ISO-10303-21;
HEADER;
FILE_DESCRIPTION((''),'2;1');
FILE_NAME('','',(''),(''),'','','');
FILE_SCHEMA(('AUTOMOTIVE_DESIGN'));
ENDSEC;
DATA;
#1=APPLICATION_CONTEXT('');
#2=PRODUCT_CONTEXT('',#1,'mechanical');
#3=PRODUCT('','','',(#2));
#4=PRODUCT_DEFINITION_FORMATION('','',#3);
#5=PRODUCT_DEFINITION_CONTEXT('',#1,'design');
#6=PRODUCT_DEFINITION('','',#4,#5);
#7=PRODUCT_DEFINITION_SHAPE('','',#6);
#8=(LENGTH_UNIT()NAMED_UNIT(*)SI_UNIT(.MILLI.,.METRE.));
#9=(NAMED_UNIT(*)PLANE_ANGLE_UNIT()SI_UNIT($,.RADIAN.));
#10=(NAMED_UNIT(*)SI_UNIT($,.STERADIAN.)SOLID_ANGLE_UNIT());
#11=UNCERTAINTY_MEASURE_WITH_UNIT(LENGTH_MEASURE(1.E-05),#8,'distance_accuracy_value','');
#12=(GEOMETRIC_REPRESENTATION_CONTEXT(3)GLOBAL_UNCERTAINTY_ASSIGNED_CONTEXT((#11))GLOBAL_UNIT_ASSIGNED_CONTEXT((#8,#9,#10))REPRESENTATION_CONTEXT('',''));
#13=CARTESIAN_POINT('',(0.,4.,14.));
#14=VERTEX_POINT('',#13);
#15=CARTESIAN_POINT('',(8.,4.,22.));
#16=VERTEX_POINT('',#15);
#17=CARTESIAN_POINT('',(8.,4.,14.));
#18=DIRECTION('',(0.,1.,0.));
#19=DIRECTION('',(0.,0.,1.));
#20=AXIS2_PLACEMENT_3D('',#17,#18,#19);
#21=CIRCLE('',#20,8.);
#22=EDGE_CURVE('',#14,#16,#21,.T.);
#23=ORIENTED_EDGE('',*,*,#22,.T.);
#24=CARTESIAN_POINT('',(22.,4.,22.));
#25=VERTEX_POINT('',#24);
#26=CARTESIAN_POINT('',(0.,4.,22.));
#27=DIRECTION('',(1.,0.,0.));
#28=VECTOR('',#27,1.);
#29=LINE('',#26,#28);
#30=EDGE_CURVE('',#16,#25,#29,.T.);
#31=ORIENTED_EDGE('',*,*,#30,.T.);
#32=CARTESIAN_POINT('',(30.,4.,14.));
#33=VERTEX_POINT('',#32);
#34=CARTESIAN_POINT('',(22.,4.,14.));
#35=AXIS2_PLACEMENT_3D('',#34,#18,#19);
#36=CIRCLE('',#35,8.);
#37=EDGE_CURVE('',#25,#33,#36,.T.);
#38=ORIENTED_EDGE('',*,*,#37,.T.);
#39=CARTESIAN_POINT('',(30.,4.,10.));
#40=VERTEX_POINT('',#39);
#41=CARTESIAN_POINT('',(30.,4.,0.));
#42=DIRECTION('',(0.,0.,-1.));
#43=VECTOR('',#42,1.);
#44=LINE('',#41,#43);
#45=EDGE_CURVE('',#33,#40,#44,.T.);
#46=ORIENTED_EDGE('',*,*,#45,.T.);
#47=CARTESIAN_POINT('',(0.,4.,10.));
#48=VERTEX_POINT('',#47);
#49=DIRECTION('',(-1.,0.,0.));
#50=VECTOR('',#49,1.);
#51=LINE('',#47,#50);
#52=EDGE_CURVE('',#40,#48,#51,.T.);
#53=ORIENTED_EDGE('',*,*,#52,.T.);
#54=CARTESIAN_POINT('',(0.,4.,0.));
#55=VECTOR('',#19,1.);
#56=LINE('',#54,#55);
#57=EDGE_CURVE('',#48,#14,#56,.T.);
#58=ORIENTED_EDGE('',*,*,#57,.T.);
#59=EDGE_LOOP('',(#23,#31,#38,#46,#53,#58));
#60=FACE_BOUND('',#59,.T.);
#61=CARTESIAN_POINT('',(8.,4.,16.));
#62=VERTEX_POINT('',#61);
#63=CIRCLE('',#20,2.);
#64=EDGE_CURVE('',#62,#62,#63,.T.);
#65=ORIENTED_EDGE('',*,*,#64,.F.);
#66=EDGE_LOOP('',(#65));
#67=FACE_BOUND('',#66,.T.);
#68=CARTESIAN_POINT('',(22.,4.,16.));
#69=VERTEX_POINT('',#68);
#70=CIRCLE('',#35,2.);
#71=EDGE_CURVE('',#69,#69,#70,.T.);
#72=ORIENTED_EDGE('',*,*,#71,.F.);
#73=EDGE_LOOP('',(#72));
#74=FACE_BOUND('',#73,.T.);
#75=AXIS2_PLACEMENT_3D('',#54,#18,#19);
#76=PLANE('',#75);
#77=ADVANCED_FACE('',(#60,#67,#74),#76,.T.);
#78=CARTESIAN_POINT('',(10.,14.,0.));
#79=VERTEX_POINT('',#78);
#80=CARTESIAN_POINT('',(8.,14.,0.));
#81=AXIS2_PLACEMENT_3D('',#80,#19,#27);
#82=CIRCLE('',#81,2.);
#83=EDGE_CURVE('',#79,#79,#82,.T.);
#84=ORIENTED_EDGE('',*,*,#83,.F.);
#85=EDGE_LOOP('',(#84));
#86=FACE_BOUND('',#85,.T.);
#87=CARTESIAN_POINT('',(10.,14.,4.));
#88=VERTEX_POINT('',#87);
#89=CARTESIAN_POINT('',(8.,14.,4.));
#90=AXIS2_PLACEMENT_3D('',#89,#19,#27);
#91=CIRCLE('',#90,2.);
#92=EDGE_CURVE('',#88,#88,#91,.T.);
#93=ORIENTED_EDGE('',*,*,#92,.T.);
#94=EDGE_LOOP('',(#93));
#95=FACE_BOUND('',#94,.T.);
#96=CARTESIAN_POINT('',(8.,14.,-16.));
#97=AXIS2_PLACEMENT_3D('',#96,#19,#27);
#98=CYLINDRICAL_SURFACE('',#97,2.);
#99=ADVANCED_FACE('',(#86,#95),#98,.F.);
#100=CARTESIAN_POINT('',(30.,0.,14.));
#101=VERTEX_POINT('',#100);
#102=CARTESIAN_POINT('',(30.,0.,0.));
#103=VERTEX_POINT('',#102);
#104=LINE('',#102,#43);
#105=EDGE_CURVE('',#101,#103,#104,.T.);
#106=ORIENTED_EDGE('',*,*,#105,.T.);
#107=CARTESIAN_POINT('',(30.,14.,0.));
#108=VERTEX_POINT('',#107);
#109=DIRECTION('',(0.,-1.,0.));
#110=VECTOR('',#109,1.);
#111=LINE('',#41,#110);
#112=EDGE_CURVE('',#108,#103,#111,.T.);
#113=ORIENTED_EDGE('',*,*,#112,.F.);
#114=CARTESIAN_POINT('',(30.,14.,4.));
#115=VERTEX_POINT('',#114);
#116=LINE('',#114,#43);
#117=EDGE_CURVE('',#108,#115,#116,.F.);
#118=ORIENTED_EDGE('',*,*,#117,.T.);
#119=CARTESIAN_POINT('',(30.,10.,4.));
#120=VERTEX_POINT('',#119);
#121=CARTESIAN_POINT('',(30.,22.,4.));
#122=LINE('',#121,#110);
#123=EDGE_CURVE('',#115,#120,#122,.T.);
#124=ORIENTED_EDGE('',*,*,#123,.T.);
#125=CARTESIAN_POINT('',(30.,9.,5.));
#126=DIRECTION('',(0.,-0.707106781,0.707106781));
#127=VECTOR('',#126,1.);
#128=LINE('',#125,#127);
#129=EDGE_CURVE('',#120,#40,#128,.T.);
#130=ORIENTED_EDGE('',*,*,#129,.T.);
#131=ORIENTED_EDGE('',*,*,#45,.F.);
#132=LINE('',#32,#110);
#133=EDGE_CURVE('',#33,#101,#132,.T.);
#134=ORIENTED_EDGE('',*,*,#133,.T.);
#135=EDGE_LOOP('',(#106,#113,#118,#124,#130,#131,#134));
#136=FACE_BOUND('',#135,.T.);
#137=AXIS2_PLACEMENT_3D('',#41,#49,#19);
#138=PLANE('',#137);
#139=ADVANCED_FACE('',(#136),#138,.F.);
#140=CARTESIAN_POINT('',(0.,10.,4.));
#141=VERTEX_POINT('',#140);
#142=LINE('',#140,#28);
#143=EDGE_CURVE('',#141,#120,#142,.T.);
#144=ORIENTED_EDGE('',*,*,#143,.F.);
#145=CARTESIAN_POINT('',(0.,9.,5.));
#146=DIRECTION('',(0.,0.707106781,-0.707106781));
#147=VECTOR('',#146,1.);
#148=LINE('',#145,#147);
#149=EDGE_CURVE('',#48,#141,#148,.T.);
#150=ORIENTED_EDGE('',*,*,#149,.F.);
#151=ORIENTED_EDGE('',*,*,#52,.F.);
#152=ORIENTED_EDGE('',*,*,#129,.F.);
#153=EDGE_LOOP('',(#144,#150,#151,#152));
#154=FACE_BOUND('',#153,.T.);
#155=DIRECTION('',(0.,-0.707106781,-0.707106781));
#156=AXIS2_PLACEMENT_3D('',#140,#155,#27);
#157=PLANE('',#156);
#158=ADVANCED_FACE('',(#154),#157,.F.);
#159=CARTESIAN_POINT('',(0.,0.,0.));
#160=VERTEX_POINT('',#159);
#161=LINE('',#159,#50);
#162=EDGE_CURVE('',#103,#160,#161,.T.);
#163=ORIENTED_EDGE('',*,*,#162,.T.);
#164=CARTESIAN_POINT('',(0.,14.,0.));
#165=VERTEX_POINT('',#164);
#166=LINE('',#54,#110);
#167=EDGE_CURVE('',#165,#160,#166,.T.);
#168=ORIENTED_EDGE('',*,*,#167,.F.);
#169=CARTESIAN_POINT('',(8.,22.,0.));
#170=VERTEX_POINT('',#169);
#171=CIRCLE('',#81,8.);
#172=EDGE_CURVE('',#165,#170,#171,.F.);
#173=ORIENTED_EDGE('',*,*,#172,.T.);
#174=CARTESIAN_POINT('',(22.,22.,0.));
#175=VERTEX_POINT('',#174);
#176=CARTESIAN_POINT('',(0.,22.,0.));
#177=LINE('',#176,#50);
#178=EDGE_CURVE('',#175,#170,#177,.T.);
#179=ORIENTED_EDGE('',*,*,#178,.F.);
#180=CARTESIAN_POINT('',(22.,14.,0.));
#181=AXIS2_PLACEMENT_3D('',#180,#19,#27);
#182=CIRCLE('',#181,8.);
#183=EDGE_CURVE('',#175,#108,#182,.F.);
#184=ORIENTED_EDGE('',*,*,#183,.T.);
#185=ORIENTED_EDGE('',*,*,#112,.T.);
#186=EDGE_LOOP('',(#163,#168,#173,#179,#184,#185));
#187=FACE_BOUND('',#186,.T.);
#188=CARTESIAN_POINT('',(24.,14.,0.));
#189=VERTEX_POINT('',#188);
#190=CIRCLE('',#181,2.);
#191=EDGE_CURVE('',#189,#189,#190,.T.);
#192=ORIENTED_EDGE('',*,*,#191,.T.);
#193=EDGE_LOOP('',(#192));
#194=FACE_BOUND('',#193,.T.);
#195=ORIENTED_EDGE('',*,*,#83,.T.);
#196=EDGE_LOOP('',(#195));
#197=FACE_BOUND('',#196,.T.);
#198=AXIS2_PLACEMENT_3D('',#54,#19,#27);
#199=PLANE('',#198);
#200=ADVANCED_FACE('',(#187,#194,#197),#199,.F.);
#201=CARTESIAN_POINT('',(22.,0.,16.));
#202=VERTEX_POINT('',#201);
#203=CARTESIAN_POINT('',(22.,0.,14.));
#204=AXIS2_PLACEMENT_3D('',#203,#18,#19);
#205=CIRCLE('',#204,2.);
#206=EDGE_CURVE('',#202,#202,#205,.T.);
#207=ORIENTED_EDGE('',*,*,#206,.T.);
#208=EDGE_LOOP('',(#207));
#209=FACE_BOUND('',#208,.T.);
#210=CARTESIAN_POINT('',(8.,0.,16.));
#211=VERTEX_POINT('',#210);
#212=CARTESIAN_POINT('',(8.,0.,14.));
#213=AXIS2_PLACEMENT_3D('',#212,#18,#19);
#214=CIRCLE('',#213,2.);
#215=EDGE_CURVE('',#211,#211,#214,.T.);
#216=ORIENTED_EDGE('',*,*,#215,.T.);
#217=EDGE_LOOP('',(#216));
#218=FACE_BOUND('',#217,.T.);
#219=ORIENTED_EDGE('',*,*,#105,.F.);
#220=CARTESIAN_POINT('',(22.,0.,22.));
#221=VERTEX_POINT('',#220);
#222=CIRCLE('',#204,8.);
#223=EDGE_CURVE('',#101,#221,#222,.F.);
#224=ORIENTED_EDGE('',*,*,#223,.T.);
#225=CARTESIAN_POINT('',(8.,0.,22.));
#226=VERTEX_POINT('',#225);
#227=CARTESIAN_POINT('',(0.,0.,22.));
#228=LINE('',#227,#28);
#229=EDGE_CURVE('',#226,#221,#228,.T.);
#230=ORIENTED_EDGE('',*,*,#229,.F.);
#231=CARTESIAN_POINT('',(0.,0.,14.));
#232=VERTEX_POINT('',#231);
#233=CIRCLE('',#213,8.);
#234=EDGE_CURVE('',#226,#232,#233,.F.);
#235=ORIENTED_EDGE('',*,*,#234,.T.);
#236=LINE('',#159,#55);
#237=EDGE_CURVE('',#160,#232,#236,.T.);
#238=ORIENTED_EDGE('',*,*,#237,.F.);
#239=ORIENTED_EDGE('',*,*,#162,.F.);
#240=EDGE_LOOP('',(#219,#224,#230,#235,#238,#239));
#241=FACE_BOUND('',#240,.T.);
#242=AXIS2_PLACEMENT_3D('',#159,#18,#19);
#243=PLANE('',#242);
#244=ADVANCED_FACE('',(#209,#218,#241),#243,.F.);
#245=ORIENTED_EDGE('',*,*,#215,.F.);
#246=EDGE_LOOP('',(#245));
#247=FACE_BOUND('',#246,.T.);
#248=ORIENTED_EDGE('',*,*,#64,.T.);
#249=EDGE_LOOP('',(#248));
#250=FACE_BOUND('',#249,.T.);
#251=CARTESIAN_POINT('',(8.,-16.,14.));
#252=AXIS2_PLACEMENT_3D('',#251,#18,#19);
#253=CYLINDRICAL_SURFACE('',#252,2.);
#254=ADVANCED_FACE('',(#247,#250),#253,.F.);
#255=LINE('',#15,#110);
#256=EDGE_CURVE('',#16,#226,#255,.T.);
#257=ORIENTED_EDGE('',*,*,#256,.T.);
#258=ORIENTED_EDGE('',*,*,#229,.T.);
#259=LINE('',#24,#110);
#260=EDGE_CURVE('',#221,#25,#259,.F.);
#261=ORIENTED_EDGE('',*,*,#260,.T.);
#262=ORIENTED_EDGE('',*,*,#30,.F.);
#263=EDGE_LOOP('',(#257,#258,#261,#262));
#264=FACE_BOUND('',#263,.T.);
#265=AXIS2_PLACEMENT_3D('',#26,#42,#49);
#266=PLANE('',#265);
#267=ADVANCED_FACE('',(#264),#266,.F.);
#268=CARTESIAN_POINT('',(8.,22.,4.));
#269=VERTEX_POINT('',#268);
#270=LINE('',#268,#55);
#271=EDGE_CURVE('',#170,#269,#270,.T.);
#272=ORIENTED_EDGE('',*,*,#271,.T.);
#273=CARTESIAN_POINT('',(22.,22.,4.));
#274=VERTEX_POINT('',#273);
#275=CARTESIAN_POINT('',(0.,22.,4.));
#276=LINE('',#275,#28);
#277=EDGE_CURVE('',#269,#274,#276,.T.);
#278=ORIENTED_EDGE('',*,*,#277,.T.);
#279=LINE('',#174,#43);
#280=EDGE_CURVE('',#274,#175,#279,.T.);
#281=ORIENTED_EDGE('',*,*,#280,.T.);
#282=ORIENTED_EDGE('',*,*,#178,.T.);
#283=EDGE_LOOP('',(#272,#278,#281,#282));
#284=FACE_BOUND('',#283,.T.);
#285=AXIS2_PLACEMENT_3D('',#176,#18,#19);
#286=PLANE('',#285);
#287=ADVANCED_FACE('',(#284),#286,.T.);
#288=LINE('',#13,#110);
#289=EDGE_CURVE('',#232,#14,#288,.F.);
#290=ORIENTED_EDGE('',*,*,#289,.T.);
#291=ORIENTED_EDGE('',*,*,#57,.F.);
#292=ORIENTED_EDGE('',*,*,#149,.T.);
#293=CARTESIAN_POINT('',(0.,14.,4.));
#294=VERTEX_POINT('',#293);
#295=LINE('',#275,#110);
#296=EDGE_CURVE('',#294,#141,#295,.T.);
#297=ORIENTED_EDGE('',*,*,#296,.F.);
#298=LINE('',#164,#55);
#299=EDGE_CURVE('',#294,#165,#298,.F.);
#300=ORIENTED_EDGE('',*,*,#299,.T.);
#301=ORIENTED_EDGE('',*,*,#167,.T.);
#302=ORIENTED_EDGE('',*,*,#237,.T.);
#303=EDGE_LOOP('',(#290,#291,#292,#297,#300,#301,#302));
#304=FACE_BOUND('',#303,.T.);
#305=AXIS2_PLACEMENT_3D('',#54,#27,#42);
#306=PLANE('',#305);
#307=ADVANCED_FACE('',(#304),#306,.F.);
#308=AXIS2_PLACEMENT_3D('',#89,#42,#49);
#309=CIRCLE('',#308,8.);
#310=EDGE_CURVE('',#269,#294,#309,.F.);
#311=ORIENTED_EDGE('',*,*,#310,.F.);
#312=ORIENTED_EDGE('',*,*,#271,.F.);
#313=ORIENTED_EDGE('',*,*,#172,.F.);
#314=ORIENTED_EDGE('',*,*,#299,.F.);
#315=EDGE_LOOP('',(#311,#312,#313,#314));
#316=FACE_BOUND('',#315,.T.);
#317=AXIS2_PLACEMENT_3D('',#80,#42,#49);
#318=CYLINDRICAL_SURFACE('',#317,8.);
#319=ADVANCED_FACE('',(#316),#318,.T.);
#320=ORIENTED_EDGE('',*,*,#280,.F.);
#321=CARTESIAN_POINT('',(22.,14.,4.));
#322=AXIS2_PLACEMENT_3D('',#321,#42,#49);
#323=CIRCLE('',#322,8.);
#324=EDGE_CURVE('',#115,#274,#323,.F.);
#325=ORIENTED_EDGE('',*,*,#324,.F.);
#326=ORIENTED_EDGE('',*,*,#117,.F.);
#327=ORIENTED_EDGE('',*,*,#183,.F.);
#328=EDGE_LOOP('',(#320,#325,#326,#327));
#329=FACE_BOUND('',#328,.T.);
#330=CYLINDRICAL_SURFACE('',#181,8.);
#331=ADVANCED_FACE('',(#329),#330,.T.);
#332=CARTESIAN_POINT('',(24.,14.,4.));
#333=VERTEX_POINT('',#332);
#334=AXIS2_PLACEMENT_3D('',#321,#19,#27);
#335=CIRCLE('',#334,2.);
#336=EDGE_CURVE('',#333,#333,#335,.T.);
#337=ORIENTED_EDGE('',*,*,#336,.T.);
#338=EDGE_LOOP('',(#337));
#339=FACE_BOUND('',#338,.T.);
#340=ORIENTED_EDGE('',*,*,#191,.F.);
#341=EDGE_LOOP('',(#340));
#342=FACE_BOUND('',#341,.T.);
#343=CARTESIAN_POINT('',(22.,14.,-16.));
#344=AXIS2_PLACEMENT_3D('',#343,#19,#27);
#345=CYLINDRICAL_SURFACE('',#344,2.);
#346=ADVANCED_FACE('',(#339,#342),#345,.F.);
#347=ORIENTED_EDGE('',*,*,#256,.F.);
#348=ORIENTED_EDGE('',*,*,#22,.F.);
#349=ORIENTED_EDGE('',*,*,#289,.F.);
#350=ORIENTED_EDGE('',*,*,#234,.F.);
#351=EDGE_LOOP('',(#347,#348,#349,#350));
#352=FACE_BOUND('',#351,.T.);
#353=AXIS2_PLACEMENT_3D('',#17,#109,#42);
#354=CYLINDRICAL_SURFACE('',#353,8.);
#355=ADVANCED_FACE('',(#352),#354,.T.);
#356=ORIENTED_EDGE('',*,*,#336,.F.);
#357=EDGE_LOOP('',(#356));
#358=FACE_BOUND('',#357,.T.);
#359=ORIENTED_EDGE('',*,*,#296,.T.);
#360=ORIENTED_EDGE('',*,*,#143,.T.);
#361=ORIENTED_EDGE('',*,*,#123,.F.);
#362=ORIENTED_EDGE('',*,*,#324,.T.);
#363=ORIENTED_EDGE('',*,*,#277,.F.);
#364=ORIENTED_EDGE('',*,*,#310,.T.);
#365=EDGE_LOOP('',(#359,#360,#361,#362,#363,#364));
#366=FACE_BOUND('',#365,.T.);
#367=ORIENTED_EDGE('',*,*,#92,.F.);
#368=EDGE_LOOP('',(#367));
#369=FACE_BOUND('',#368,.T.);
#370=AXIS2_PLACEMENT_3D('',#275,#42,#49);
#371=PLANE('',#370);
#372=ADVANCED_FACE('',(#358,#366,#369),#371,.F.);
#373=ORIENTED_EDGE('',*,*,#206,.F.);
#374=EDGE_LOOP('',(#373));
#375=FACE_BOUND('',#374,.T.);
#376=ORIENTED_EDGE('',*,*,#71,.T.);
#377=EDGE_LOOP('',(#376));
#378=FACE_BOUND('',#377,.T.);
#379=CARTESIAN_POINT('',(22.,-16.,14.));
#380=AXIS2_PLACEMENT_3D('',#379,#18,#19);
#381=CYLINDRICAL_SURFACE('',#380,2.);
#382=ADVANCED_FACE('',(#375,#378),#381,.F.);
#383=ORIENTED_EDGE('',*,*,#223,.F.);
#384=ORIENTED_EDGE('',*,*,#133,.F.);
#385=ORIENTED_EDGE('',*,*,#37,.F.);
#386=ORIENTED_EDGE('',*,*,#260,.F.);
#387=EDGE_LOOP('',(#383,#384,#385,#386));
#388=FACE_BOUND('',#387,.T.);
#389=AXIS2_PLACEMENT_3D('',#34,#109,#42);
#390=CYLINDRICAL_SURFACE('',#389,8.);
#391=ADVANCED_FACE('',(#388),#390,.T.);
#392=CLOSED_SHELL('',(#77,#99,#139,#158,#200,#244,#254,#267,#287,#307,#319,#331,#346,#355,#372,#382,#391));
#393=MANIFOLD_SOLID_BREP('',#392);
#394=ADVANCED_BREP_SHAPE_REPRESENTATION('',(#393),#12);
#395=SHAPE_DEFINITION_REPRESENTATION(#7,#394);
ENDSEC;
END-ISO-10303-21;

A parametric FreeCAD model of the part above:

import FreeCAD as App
import Part
import Sketcher
Q = App.Units.Quantity


def edges_at(feature, points):
    """Names of the edges that pass closest to the given points."""
    edges = feature.Shape.Edges
    near = lambda p: min(range(len(edges)), key=lambda i: edges[i].distToShape(Part.Vertex(*p))[0])
    return sorted({f"Edge{near(p) + 1}" for p in points})


def add_polygon(sketch, points):
    """Adds a closed chain of lines whose ends are joined by coincident constraints."""
    first, n = sketch.GeometryCount, len(points)
    for a, b in zip(points, points[1:] + points[:1]):
        sketch.addGeometry(Part.LineSegment(App.Vector(*a, 0), App.Vector(*b, 0)), False)
    for i in range(n):
        sketch.addConstraint(Sketcher.Constraint("Coincident", first + i, 2, first + (i + 1) % n, 1))

doc = App.newDocument("Part")
params = doc.addObject("Spreadsheet::Sheet", "Params")
for row, (alias, value) in enumerate([
    ("sketch1_width", "30 mm"),
    ("sketch1_height", "22 mm"),
    ("pad1_length", "4 mm"),
    ("sketch2_width", "30 mm"),
    ("sketch2_height", "4 mm"),
    ("pad2_length", "18 mm"),
    ("sketch3_diameter", "4 mm"),
    ("pocket1_length", "20 mm"),
    ("sketch4_diameter", "4 mm"),
    ("pocket2_length", "20 mm"),
    ("chamfer_size", "6 mm"),
    ("fillet_radius", "8 mm"),
], start=1):
    params.set(f"A{row}", alias)
    params.set(f"B{row}", "=" + value)
    params.setAlias(f"B{row}", alias)

body = doc.addObject("PartDesign::Body", "Body")

# Sketch on XZ plane
sketch1 = body.newObject("Sketcher::SketchObject", "Sketch")
sketch1.AttachmentSupport = (doc.getObject("XZ_Plane"), [""])
sketch1.MapMode = "FlatFace"
add_polygon(sketch1, [(0, 0), (0, 22), (30, 22), (30, 0)])  # lines 0-3
sketch1.addConstraint(Sketcher.Constraint("Vertical", 0))
sketch1.addConstraint(Sketcher.Constraint("Horizontal", 1))
sketch1.addConstraint(Sketcher.Constraint("Vertical", 2))
sketch1.addConstraint(Sketcher.Constraint("Horizontal", 3))
sketch1.addConstraint(Sketcher.Constraint("Coincident", 3, 2, -1, 1))
sketch1.addConstraint(Sketcher.Constraint("DistanceX", 1, 1, 1, 2, Q("30 mm")))
sketch1.addConstraint(Sketcher.Constraint("DistanceY", 0, 1, 0, 2, Q("22 mm")))
sketch1.setExpression("Constraints[9]", "Params.sketch1_width")
sketch1.setExpression("Constraints[10]", "Params.sketch1_height")
pad1 = body.newObject("PartDesign::Pad", "Pad")
pad1.Profile = sketch1
pad1.setExpression("Length", "Params.pad1_length")
pad1.Reversed = True

# Sketch on XZ plane
sketch2 = body.newObject("Sketcher::SketchObject", "Sketch001")
sketch2.AttachmentSupport = (doc.getObject("XZ_Plane"), [""])
sketch2.MapMode = "FlatFace"
sketch2.AttachmentOffset = App.Placement(App.Vector(0, 0, -4), App.Rotation())
add_polygon(sketch2, [(0, 0), (0, 4), (30, 4), (30, 0)])  # lines 0-3
sketch2.addConstraint(Sketcher.Constraint("Vertical", 0))
sketch2.addConstraint(Sketcher.Constraint("Horizontal", 1))
sketch2.addConstraint(Sketcher.Constraint("Vertical", 2))
sketch2.addConstraint(Sketcher.Constraint("Horizontal", 3))
sketch2.addConstraint(Sketcher.Constraint("Coincident", 3, 2, -1, 1))
sketch2.addConstraint(Sketcher.Constraint("DistanceX", 1, 1, 1, 2, Q("30 mm")))
sketch2.addConstraint(Sketcher.Constraint("DistanceY", 0, 1, 0, 2, Q("4 mm")))
sketch2.setExpression("Constraints[9]", "Params.sketch2_width")
sketch2.setExpression("Constraints[10]", "Params.sketch2_height")
pad2 = body.newObject("PartDesign::Pad", "Pad001")
pad2.Profile = sketch2
pad2.setExpression("Length", "Params.pad2_length")
pad2.Reversed = True

# Sketch on XZ plane
sketch3 = body.newObject("Sketcher::SketchObject", "Sketch002")
sketch3.AttachmentSupport = (doc.getObject("XZ_Plane"), [""])
sketch3.MapMode = "FlatFace"
sketch3.AttachmentOffset = App.Placement(App.Vector(0, 0, -4), App.Rotation())
sketch3.addGeometry(Part.Circle(App.Vector(8, 14, 0), App.Vector(0, 0, 1), 2), False)
sketch3.addGeometry(Part.Circle(App.Vector(22, 14, 0), App.Vector(0, 0, 1), 2), False)
sketch3.addConstraint(Sketcher.Constraint("Equal", 0, 1))
sketch3.addConstraint(Sketcher.Constraint("Horizontal", 0, 3, 1, 3))
sketch3.addConstraint(Sketcher.Constraint("Diameter", 0, Q("4 mm")))
sketch3.addConstraint(Sketcher.Constraint("DistanceX", -1, 1, 0, 3, Q("8 mm")))
sketch3.addConstraint(Sketcher.Constraint("DistanceY", -1, 1, 0, 3, Q("14 mm")))
sketch3.addConstraint(Sketcher.Constraint("DistanceX", -1, 1, 1, 3, Q("22 mm")))
sketch3.setExpression("Constraints[2]", "Params.sketch3_diameter")
pocket1 = body.newObject("PartDesign::Pocket", "Pocket")
pocket1.Profile = sketch3
pocket1.setExpression("Length", "Params.pocket1_length")
pocket1.Reversed = True

# Sketch on XY plane
sketch4 = body.newObject("Sketcher::SketchObject", "Sketch003")
sketch4.AttachmentSupport = (doc.getObject("XY_Plane"), [""])
sketch4.MapMode = "FlatFace"
sketch4.AttachmentOffset = App.Placement(App.Vector(0, 0, 4), App.Rotation())
sketch4.addGeometry(Part.Circle(App.Vector(8, 14, 0), App.Vector(0, 0, 1), 2), False)
sketch4.addGeometry(Part.Circle(App.Vector(22, 14, 0), App.Vector(0, 0, 1), 2), False)
sketch4.addConstraint(Sketcher.Constraint("Equal", 0, 1))
sketch4.addConstraint(Sketcher.Constraint("Horizontal", 0, 3, 1, 3))
sketch4.addConstraint(Sketcher.Constraint("Diameter", 0, Q("4 mm")))
sketch4.addConstraint(Sketcher.Constraint("DistanceX", -1, 1, 0, 3, Q("8 mm")))
sketch4.addConstraint(Sketcher.Constraint("DistanceY", -1, 1, 0, 3, Q("14 mm")))
sketch4.addConstraint(Sketcher.Constraint("DistanceX", -1, 1, 1, 3, Q("22 mm")))
sketch4.setExpression("Constraints[2]", "Params.sketch4_diameter")
pocket2 = body.newObject("PartDesign::Pocket", "Pocket001")
pocket2.Profile = sketch4
pocket2.setExpression("Length", "Params.pocket2_length")
doc.recompute()

chamfer = body.newObject("PartDesign::Chamfer", "Chamfer")
chamfer.Base = (pocket2, edges_at(pocket2, [(15, 4, 4)]))
chamfer.setExpression("Size", "Params.chamfer_size")
doc.recompute()

fillet = body.newObject("PartDesign::Fillet", "Fillet")
fillet.Base = (chamfer, edges_at(chamfer, [
    (0, 22, 2),
    (30, 22, 2),
    (30, 2, 22),
    (0, 2, 22),
]))
fillet.setExpression("Radius", "Params.fillet_radius")

doc.recompute()
